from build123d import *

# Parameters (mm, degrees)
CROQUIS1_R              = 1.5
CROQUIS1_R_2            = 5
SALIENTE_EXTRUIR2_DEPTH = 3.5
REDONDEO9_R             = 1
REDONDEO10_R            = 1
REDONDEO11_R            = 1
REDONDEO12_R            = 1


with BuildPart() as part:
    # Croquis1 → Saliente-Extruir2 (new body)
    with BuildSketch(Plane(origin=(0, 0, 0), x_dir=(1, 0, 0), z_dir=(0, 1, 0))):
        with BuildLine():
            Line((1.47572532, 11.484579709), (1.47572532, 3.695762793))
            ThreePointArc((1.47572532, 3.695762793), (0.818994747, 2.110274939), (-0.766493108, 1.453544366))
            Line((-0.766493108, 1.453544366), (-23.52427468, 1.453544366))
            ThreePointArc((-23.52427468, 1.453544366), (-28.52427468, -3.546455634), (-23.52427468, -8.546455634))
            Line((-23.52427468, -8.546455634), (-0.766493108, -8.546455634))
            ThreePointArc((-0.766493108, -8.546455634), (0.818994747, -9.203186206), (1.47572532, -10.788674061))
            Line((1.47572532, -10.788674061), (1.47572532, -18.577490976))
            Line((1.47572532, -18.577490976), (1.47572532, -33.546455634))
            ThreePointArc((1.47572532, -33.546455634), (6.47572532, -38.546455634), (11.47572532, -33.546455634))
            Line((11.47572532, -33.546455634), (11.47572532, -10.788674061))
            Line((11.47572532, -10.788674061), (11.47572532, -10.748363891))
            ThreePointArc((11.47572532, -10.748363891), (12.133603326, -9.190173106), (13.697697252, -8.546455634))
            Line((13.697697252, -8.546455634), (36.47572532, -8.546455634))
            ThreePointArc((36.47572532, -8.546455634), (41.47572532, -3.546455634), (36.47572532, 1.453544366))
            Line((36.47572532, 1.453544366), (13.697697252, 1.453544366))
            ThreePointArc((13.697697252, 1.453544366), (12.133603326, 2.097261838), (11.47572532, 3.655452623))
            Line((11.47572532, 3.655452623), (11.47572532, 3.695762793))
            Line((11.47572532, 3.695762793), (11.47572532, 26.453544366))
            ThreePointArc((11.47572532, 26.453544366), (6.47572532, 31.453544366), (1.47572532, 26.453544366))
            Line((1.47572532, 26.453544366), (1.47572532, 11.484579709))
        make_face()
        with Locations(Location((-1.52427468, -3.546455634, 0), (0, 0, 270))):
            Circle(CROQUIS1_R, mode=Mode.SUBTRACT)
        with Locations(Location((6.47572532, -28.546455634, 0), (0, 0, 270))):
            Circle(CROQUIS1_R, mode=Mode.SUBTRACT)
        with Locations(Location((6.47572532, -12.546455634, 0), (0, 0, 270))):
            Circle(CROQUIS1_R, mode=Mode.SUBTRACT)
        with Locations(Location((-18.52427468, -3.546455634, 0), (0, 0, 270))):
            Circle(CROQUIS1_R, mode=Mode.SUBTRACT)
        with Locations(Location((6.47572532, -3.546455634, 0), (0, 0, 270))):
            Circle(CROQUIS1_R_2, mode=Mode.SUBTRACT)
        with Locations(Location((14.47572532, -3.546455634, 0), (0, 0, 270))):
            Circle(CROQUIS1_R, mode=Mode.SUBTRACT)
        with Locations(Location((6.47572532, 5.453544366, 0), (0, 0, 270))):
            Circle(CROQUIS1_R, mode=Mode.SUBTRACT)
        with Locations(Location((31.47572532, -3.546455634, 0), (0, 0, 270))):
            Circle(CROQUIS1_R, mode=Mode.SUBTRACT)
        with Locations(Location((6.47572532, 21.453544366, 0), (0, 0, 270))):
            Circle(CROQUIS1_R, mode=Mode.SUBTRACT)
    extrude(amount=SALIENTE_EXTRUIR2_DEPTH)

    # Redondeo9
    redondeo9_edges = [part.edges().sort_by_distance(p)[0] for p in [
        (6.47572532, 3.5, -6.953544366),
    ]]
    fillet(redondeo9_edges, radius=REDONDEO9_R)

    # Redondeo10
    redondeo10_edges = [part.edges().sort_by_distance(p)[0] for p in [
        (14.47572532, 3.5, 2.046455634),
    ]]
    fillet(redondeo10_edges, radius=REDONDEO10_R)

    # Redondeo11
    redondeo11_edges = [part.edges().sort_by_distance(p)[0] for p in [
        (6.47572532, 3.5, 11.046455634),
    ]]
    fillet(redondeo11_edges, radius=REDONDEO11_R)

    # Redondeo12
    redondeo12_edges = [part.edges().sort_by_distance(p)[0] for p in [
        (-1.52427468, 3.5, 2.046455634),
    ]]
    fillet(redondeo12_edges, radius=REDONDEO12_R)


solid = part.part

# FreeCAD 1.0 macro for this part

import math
import FreeCAD as App
import Part
import Sketcher
from FreeCAD import Vector
Q = App.Units.Quantity


def edges_at(feature, points):
    """Names of the edges that pass closest to the given points."""
    edges = feature.Shape.Edges
    near = lambda p: min(range(len(edges)), key=lambda i: edges[i].distToShape(Part.Vertex(*p))[0])
    return sorted({f"Edge{near(p) + 1}" for p in points})

doc = App.newDocument("Part")
body = doc.addObject("PartDesign::Body", "Body")

sketch1 = body.newObject("Sketcher::SketchObject", "Sketch")
sketch1.AttachmentSupport = (doc.getObject("XZ_Plane"), [""])
sketch1.MapMode = "FlatFace"
sketch1.addGeometry([
    Part.ArcOfCircle(Part.Circle(Vector(-0.766493, -3.695763, 0), Vector(0, 0, 1), 2.242218), math.radians(0), math.radians(90)),
    Part.LineSegment(Vector(-0.766493, -1.453544, 0), Vector(-23.524275, -1.453544, 0)),
    Part.ArcOfCircle(Part.Circle(Vector(-23.524275, 3.546456, 0), Vector(0, 0, 1), 5), math.radians(90), math.radians(270)),
    Part.LineSegment(Vector(-23.524275, 8.546456, 0), Vector(-0.766493, 8.546456, 0)),
    Part.ArcOfCircle(Part.Circle(Vector(-0.766493, 10.788674, 0), Vector(0, 0, 1), 2.242218), math.radians(-90), math.radians(0)),
    Part.LineSegment(Vector(1.475725, 10.788674, 0), Vector(1.475725, 33.546456, 0)),
    Part.ArcOfCircle(Part.Circle(Vector(6.475725, 33.546456, 0), Vector(0, 0, 1), 5), math.radians(0), math.radians(180)),
    Part.LineSegment(Vector(11.475725, 33.546456, 0), Vector(11.475725, 10.748364, 0)),
    Part.ArcOfCircle(Part.Circle(Vector(13.697697, 10.768519, 0), Vector(0, 0, 1), 2.222063), math.radians(-179.480295), math.radians(-90)),
    Part.LineSegment(Vector(13.697697, 8.546456, 0), Vector(36.475725, 8.546456, 0)),
    Part.ArcOfCircle(Part.Circle(Vector(36.475725, 3.546456, 0), Vector(0, 0, 1), 5), math.radians(-90), math.radians(90)),
    Part.LineSegment(Vector(36.475725, -1.453544, 0), Vector(13.697697, -1.453544, 0)),
    Part.ArcOfCircle(Part.Circle(Vector(13.697697, -3.675608, 0), Vector(0, 0, 1), 2.222063), math.radians(90), math.radians(179.480295)),
    Part.LineSegment(Vector(11.475725, -3.655453, 0), Vector(11.475725, -26.453544, 0)),
    Part.ArcOfCircle(Part.Circle(Vector(6.475725, -26.453544, 0), Vector(0, 0, 1), 5), math.radians(180), math.radians(360)),
    Part.LineSegment(Vector(1.475725, -26.453544, 0), Vector(1.475725, -3.695763, 0)),
    Part.Circle(Vector(6.475725, 28.546456, 0), Vector(0, 0, 1), 1.5),
    Part.Circle(Vector(6.475725, 12.546456, 0), Vector(0, 0, 1), 1.5),
    Part.Circle(Vector(-18.524275, 3.546456, 0), Vector(0, 0, 1), 1.5),
    Part.Circle(Vector(-1.524275, 3.546456, 0), Vector(0, 0, 1), 1.5),
    Part.Circle(Vector(6.475725, 3.546456, 0), Vector(0, 0, 1), 5),
    Part.Circle(Vector(14.475725, 3.546456, 0), Vector(0, 0, 1), 1.5),
    Part.Circle(Vector(6.475725, -5.453544, 0), Vector(0, 0, 1), 1.5),
    Part.Circle(Vector(31.475725, 3.546456, 0), Vector(0, 0, 1), 1.5),
    Part.Circle(Vector(6.475725, -21.453544, 0), Vector(0, 0, 1), 1.5),
], False)
sketch1.addConstraint([
    Sketcher.Constraint("Coincident", 0, 2, 1, 1),
    Sketcher.Constraint("Coincident", 1, 2, 2, 2),
    Sketcher.Constraint("Coincident", 2, 1, 3, 1),
    Sketcher.Constraint("Coincident", 3, 2, 4, 1),
    Sketcher.Constraint("Coincident", 4, 2, 5, 1),
    Sketcher.Constraint("Coincident", 5, 2, 6, 2),
    Sketcher.Constraint("Coincident", 6, 1, 7, 1),
    Sketcher.Constraint("Coincident", 7, 2, 8, 1),
    Sketcher.Constraint("Coincident", 8, 2, 9, 1),
    Sketcher.Constraint("Coincident", 9, 2, 10, 2),
    Sketcher.Constraint("Coincident", 10, 1, 11, 1),
    Sketcher.Constraint("Coincident", 11, 2, 12, 1),
    Sketcher.Constraint("Coincident", 12, 2, 13, 1),
    Sketcher.Constraint("Coincident", 13, 2, 14, 2),
    Sketcher.Constraint("Coincident", 14, 1, 15, 1),
    Sketcher.Constraint("Coincident", 15, 2, 0, 1),
    Sketcher.Constraint("Horizontal", 1),
    Sketcher.Constraint("Horizontal", 3),
    Sketcher.Constraint("Vertical", 5),
    Sketcher.Constraint("Vertical", 7),
    Sketcher.Constraint("Horizontal", 9),
    Sketcher.Constraint("Horizontal", 11),
    Sketcher.Constraint("Vertical", 13),
    Sketcher.Constraint("Vertical", 15),
    Sketcher.Constraint("Diameter", 16, Q("3 mm")),
    Sketcher.Constraint("Diameter", 17, Q("3 mm")),
    Sketcher.Constraint("Diameter", 18, Q("3 mm")),
    Sketcher.Constraint("Diameter", 19, Q("3 mm")),
    Sketcher.Constraint("Diameter", 20, Q("10 mm")),
    Sketcher.Constraint("Diameter", 21, Q("3 mm")),
    Sketcher.Constraint("Diameter", 22, Q("3 mm")),
    Sketcher.Constraint("Diameter", 23, Q("3 mm")),
    Sketcher.Constraint("Diameter", 24, Q("3 mm")),
    Sketcher.Constraint("Radius", 2, Q("5 mm")),
    Sketcher.Constraint("Radius", 6, Q("5 mm")),
    Sketcher.Constraint("Radius", 10, Q("5 mm")),
    Sketcher.Constraint("Radius", 14, Q("5 mm")),
    Sketcher.Constraint("DistanceX", 2, 3, 6, 3, Q("30 mm")),
    Sketcher.Constraint("DistanceY", 2, 3, 6, 3, Q("30 mm")),
    Sketcher.Constraint("DistanceX", 6, 3, 10, 3, Q("30 mm")),
    Sketcher.Constraint("DistanceY", 10, 3, 6, 3, Q("30 mm")),
    Sketcher.Constraint("DistanceX", 2, 3, 14, 3, Q("30 mm")),
    Sketcher.Constraint("DistanceY", 14, 3, 2, 3, Q("30 mm")),
    Sketcher.Constraint("DistanceY", 16, 3, 6, 3, Q("5 mm")),
    Sketcher.Constraint("DistanceY", 17, 3, 16, 3, Q("16 mm")),
    Sketcher.Constraint("DistanceX", 2, 3, 18, 3, Q("5 mm")),
    Sketcher.Constraint("DistanceX", 18, 3, 17, 3, Q("25 mm")),
    Sketcher.Constraint("DistanceY", 18, 3, 17, 3, Q("9 mm")),
    Sketcher.Constraint("DistanceX", 19, 3, 17, 3, Q("8 mm")),
    Sketcher.Constraint("DistanceY", 19, 3, 17, 3, Q("9 mm")),
    Sketcher.Constraint("DistanceX", 19, 3, 20, 3, Q("8 mm")),
    Sketcher.Constraint("DistanceY", 20, 3, 17, 3, Q("9 mm")),
    Sketcher.Constraint("DistanceX", 20, 3, 21, 3, Q("8 mm")),
    Sketcher.Constraint("DistanceY", 21, 3, 17, 3, Q("9 mm")),
    Sketcher.Constraint("DistanceY", 22, 3, 20, 3, Q("9 mm")),
    Sketcher.Constraint("DistanceX", 19, 3, 22, 3, Q("8 mm")),
    Sketcher.Constraint("DistanceX", 23, 3, 10, 3, Q("5 mm")),
    Sketcher.Constraint("DistanceY", 14, 3, 24, 3, Q("5 mm")),
    Sketcher.Constraint("DistanceX", 1, 2, 18, 3, Q("5 mm")),
    Sketcher.Constraint("DistanceX", 2, 1, 18, 3, Q("5 mm")),
    Sketcher.Constraint("DistanceX", 5, 2, 16, 3, Q("5 mm")),
    Sketcher.Constraint("DistanceY", 16, 3, 5, 2, Q("5 mm")),
    Sketcher.Constraint("DistanceY", 16, 3, 6, 1, Q("5 mm")),
    Sketcher.Constraint("DistanceX", 23, 3, 9, 2, Q("5 mm")),
    Sketcher.Constraint("DistanceY", 23, 3, 9, 2, Q("5 mm")),
    Sketcher.Constraint("DistanceX", 23, 3, 10, 1, Q("5 mm")),
    Sketcher.Constraint("DistanceX", 24, 3, 13, 2, Q("5 mm")),
    Sketcher.Constraint("DistanceY", 13, 2, 24, 3, Q("5 mm")),
    Sketcher.Constraint("DistanceY", 14, 1, 24, 3, Q("5 mm")),
    Sketcher.Constraint("Radius", 0, Q("2.242218 mm")),
    Sketcher.Constraint("Radius", 4, Q("2.242218 mm")),
    Sketcher.Constraint("Radius", 8, Q("2.222063 mm")),
    Sketcher.Constraint("Radius", 12, Q("2.222063 mm")),
    Sketcher.Constraint("DistanceX", 1, 2, 1, 1, Q("22.757782 mm")),
    Sketcher.Constraint("DistanceX", 3, 1, 3, 2, Q("22.757782 mm")),
    Sketcher.Constraint("DistanceX", 9, 1, 9, 2, Q("22.778028 mm")),
    Sketcher.Constraint("DistanceX", 11, 2, 11, 1, Q("22.778028 mm")),
    Sketcher.Constraint("DistanceY", 5, 1, 5, 2, Q("22.757782 mm")),
    Sketcher.Constraint("DistanceY", 7, 2, 7, 1, Q("22.798092 mm")),
    Sketcher.Constraint("DistanceY", 13, 2, 13, 1, Q("22.798092 mm")),
    Sketcher.Constraint("DistanceY", 15, 1, 15, 2, Q("22.757782 mm")),
    Sketcher.Constraint("DistanceY", -1, 1, 8, 3, Q("10.768519 mm")),
    Sketcher.Constraint("DistanceX", 0, 3, -1, 1, Q("0.766493 mm")),
])
pad1 = body.newObject("PartDesign::Pad", "Pad")
pad1.Profile = sketch1
pad1.Length = 3.5
pad1.Reversed = True
doc.recompute()

fillet = body.newObject("PartDesign::Fillet", "Fillet")
fillet.Base = (pad1, edges_at(pad1, [(6.476, 3.5, -6.954)]))
fillet.Radius = 1
doc.recompute()

fillet2 = body.newObject("PartDesign::Fillet", "Fillet001")
fillet2.Base = (fillet, edges_at(fillet, [(14.476, 3.5, 2.046)]))
fillet2.Radius = 1
doc.recompute()

fillet3 = body.newObject("PartDesign::Fillet", "Fillet002")
fillet3.Base = (fillet2, edges_at(fillet2, [(6.476, 3.5, 11.046)]))
fillet3.Radius = 1
doc.recompute()

fillet4 = body.newObject("PartDesign::Fillet", "Fillet003")
fillet4.Base = (fillet3, edges_at(fillet3, [(-1.524, 3.5, 2.046)]))
fillet4.Radius = 1

doc.recompute()
